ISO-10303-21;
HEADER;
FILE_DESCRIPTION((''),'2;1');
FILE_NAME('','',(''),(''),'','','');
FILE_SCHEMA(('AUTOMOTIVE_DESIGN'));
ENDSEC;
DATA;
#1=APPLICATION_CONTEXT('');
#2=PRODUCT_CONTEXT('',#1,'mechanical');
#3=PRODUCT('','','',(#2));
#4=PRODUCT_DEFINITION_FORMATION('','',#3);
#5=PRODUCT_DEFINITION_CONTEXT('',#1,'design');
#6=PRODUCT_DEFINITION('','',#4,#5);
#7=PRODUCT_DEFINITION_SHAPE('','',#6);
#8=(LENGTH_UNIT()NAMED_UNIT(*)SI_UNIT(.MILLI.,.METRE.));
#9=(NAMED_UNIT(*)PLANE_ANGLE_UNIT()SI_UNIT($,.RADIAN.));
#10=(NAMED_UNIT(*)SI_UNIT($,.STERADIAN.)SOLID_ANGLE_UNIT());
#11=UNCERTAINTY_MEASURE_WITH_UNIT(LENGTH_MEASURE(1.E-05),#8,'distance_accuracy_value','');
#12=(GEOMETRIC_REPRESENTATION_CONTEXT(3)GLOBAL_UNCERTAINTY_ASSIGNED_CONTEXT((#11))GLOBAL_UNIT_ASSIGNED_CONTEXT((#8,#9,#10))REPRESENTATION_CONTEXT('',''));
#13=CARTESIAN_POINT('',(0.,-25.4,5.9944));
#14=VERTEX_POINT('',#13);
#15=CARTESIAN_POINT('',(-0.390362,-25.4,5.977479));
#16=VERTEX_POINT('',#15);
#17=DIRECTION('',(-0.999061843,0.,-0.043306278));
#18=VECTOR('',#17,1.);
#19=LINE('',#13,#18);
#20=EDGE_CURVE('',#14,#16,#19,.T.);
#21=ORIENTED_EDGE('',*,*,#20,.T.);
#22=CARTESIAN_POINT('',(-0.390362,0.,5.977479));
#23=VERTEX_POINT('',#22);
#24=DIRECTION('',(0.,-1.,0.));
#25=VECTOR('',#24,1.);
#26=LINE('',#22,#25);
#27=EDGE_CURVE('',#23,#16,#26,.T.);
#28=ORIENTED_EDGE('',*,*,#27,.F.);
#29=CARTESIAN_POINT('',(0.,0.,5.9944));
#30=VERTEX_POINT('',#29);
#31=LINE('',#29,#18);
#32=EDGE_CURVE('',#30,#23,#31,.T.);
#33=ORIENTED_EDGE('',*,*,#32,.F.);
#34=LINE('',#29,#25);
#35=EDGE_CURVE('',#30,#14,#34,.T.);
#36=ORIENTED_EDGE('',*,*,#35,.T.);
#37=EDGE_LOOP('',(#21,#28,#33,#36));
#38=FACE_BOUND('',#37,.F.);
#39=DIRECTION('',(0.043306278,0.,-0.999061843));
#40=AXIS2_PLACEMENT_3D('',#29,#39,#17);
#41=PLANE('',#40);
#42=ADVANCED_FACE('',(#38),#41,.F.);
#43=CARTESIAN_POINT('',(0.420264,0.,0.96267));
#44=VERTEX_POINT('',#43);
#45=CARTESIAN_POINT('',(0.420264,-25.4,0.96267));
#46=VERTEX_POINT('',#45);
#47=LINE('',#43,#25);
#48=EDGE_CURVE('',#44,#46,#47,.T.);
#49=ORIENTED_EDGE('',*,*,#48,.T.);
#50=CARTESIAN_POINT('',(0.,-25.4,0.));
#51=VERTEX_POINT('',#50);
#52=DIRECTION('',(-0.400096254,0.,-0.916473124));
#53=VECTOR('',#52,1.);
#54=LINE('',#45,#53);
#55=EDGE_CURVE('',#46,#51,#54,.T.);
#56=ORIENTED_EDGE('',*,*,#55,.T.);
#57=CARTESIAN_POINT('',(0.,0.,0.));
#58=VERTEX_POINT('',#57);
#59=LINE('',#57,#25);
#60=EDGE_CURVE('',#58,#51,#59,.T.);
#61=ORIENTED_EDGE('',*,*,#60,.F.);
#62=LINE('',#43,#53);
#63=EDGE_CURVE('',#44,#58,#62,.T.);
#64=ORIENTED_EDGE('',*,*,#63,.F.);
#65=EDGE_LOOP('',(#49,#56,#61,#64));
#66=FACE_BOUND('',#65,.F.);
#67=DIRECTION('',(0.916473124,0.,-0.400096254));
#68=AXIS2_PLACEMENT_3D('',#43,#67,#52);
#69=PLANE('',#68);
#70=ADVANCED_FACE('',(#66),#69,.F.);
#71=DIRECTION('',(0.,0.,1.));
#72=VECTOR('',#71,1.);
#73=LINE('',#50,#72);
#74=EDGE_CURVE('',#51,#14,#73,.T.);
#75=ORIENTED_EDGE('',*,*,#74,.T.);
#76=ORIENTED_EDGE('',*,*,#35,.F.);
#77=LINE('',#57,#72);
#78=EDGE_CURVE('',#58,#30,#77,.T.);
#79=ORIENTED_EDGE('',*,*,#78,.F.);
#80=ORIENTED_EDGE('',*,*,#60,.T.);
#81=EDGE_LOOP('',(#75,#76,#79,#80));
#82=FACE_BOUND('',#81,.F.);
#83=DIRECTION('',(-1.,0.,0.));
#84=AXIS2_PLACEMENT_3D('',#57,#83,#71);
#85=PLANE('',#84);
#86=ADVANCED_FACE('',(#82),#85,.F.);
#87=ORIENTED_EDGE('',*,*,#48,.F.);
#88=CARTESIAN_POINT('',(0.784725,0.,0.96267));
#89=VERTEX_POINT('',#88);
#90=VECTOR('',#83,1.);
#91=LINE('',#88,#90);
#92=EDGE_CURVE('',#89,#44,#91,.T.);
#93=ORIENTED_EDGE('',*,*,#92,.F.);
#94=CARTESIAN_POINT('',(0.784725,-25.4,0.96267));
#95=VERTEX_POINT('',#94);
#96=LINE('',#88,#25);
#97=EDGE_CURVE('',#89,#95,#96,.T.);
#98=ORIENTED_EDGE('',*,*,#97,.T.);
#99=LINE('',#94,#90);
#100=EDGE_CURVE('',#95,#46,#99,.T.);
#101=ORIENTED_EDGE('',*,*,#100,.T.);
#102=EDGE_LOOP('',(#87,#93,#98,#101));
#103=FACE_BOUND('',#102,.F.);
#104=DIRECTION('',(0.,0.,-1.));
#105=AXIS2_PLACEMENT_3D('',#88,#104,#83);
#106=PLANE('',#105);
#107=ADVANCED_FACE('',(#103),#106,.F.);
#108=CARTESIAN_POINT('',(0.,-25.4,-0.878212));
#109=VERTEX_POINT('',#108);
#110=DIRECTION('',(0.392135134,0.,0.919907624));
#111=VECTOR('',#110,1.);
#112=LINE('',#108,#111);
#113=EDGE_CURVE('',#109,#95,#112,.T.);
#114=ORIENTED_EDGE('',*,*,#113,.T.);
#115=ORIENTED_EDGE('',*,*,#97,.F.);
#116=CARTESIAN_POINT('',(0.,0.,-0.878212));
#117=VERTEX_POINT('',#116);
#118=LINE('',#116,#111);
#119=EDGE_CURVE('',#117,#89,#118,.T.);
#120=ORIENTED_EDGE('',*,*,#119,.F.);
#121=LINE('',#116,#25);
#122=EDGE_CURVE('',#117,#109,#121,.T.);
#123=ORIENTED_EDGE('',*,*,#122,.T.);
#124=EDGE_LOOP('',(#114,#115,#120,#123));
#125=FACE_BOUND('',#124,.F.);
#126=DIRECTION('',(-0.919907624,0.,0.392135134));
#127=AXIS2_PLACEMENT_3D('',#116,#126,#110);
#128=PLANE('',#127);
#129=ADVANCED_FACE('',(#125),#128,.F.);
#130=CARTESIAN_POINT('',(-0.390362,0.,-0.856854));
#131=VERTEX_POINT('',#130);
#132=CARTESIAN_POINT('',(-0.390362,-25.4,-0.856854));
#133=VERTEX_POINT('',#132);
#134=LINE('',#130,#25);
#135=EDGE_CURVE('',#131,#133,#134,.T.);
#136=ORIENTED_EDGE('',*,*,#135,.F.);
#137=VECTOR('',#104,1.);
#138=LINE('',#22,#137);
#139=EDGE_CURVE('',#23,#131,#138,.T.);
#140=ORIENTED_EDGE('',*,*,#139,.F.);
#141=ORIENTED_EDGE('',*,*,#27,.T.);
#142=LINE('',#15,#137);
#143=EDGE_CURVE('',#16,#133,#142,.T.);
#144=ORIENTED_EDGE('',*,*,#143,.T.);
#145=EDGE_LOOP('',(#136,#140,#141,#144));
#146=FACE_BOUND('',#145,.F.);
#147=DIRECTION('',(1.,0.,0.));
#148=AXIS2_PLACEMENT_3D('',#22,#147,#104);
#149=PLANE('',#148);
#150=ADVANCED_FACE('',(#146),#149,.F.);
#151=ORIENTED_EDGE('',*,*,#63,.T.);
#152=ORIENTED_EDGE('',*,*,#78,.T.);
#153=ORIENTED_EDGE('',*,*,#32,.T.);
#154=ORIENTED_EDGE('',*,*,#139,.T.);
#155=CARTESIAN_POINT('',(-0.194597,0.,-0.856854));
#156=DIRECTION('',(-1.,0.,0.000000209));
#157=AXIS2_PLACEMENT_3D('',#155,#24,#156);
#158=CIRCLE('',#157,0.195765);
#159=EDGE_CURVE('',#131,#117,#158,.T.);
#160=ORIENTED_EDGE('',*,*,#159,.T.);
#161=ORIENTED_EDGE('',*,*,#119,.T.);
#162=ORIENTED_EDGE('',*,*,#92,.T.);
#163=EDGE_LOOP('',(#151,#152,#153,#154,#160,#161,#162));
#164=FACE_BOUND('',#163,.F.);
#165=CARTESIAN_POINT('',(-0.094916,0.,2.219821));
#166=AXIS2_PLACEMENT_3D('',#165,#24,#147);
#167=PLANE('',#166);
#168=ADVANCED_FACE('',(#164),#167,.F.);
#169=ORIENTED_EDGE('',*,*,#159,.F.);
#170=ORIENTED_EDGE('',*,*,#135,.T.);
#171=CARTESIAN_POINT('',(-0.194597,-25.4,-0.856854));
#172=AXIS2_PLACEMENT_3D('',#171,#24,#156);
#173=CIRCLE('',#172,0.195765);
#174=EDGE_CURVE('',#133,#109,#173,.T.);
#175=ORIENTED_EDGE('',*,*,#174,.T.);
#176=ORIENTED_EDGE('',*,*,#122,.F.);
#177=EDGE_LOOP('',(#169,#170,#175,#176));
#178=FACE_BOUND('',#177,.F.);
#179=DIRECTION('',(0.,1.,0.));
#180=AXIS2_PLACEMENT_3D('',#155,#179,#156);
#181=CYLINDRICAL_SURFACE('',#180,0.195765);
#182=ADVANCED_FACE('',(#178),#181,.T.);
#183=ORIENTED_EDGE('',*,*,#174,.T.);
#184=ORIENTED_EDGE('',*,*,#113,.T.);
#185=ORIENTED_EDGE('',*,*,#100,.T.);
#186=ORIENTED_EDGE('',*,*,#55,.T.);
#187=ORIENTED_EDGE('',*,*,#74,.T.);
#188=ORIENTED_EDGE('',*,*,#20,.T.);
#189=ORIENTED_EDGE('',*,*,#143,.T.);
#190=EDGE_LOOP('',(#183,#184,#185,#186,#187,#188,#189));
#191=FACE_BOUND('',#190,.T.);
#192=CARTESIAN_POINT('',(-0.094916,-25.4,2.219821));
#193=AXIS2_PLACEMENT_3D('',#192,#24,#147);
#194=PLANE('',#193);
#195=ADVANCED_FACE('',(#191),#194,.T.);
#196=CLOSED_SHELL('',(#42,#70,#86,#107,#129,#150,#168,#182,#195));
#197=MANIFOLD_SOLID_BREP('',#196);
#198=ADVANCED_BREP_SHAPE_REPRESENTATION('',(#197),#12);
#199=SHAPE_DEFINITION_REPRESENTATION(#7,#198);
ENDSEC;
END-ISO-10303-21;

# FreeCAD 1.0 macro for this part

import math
import FreeCAD as App
import Part
import Sketcher

V = App.Vector
Q = App.Units.Quantity

doc = App.newDocument("Part")
body = doc.addObject("PartDesign::Body", "Body")

# Sketch on XZ plane
sketch1 = doc.addObject("Sketcher::SketchObject", "Sketch")
body.addObject(sketch1)
sketch1.AttachmentSupport = (doc.XZ_Plane, [""])
sketch1.MapMode = "FlatFace"
sketch1.addGeometry(Part.LineSegment(V(0, 0, 0), V(0, 5.9944, 0)), False)
sketch1.addGeometry(Part.LineSegment(V(0, 5.9944, 0), V(-0.390362, 5.977479, 0)), False)
sketch1.addGeometry(Part.LineSegment(V(-0.390362, 5.977479, 0), V(-0.390362, -0.856854, 0)), False)
sketch1.addGeometry(Part.ArcOfCircle(Part.Circle(V(-0.194597, -0.856854, 0), V(0, 0, 1), 0.195765), math.radians(179.999988), math.radians(353.736573)), False)
sketch1.addGeometry(Part.LineSegment(V(0, -0.878212, 0), V(0.784725, 0.96267, 0)), False)
sketch1.addGeometry(Part.LineSegment(V(0.784725, 0.96267, 0), V(0.420264, 0.96267, 0)), False)
sketch1.addGeometry(Part.LineSegment(V(0.420264, 0.96267, 0), V(0, 0, 0)), False)
sketch1.addConstraint(Sketcher.Constraint("Coincident", 0, 2, 1, 1))
sketch1.addConstraint(Sketcher.Constraint("Coincident", 1, 2, 2, 1))
sketch1.addConstraint(Sketcher.Constraint("Coincident", 2, 2, 3, 1))
sketch1.addConstraint(Sketcher.Constraint("Coincident", 3, 2, 4, 1))
sketch1.addConstraint(Sketcher.Constraint("Coincident", 4, 2, 5, 1))
sketch1.addConstraint(Sketcher.Constraint("Coincident", 5, 2, 6, 1))
sketch1.addConstraint(Sketcher.Constraint("Coincident", 6, 2, 0, 1))
sketch1.addConstraint(Sketcher.Constraint("Vertical", 0))
sketch1.addConstraint(Sketcher.Constraint("Vertical", 2))
sketch1.addConstraint(Sketcher.Constraint("Horizontal", 5))
sketch1.addConstraint(Sketcher.Constraint("Coincident", 6, 2, -1, 1))
sketch1.addConstraint(Sketcher.Constraint("PointOnObject", 3, 2, -2))
sketch1.addConstraint(Sketcher.Constraint("DistanceY", 0, 1, 0, 2, Q("0.236 in")))
sketch1.addConstraint(Sketcher.Constraint("Radius", 3, Q("0.195765 mm")))
sketch1.addConstraint(Sketcher.Constraint("DistanceX", 5, 2, 5, 1, Q("0.364461 mm")))
sketch1.addConstraint(Sketcher.Constraint("Distance", 1, Q("0.390729 mm")))
sketch1.addConstraint(Sketcher.Constraint("Distance", 4, Q("2.00116 mm")))
sketch1.addConstraint(Sketcher.Constraint("DistanceY", 2, 2, 2, 1, Q("6.834333 mm")))
sketch1.addConstraint(Sketcher.Constraint("DistanceY", -1, 1, 1, 2, Q("5.977479 mm")))
sketch1.addConstraint(Sketcher.Constraint("DistanceY", 3, 2, -1, 1, Q("0.878212 mm")))
sketch1.addConstraint(Sketcher.Constraint("DistanceY", -1, 1, 4, 2, Q("0.96267 mm")))
pad1 = doc.addObject("PartDesign::Pad", "Pad")
body.addObject(pad1)
pad1.Profile = sketch1
pad1.Length = Q("1 in")

doc.recompute()
